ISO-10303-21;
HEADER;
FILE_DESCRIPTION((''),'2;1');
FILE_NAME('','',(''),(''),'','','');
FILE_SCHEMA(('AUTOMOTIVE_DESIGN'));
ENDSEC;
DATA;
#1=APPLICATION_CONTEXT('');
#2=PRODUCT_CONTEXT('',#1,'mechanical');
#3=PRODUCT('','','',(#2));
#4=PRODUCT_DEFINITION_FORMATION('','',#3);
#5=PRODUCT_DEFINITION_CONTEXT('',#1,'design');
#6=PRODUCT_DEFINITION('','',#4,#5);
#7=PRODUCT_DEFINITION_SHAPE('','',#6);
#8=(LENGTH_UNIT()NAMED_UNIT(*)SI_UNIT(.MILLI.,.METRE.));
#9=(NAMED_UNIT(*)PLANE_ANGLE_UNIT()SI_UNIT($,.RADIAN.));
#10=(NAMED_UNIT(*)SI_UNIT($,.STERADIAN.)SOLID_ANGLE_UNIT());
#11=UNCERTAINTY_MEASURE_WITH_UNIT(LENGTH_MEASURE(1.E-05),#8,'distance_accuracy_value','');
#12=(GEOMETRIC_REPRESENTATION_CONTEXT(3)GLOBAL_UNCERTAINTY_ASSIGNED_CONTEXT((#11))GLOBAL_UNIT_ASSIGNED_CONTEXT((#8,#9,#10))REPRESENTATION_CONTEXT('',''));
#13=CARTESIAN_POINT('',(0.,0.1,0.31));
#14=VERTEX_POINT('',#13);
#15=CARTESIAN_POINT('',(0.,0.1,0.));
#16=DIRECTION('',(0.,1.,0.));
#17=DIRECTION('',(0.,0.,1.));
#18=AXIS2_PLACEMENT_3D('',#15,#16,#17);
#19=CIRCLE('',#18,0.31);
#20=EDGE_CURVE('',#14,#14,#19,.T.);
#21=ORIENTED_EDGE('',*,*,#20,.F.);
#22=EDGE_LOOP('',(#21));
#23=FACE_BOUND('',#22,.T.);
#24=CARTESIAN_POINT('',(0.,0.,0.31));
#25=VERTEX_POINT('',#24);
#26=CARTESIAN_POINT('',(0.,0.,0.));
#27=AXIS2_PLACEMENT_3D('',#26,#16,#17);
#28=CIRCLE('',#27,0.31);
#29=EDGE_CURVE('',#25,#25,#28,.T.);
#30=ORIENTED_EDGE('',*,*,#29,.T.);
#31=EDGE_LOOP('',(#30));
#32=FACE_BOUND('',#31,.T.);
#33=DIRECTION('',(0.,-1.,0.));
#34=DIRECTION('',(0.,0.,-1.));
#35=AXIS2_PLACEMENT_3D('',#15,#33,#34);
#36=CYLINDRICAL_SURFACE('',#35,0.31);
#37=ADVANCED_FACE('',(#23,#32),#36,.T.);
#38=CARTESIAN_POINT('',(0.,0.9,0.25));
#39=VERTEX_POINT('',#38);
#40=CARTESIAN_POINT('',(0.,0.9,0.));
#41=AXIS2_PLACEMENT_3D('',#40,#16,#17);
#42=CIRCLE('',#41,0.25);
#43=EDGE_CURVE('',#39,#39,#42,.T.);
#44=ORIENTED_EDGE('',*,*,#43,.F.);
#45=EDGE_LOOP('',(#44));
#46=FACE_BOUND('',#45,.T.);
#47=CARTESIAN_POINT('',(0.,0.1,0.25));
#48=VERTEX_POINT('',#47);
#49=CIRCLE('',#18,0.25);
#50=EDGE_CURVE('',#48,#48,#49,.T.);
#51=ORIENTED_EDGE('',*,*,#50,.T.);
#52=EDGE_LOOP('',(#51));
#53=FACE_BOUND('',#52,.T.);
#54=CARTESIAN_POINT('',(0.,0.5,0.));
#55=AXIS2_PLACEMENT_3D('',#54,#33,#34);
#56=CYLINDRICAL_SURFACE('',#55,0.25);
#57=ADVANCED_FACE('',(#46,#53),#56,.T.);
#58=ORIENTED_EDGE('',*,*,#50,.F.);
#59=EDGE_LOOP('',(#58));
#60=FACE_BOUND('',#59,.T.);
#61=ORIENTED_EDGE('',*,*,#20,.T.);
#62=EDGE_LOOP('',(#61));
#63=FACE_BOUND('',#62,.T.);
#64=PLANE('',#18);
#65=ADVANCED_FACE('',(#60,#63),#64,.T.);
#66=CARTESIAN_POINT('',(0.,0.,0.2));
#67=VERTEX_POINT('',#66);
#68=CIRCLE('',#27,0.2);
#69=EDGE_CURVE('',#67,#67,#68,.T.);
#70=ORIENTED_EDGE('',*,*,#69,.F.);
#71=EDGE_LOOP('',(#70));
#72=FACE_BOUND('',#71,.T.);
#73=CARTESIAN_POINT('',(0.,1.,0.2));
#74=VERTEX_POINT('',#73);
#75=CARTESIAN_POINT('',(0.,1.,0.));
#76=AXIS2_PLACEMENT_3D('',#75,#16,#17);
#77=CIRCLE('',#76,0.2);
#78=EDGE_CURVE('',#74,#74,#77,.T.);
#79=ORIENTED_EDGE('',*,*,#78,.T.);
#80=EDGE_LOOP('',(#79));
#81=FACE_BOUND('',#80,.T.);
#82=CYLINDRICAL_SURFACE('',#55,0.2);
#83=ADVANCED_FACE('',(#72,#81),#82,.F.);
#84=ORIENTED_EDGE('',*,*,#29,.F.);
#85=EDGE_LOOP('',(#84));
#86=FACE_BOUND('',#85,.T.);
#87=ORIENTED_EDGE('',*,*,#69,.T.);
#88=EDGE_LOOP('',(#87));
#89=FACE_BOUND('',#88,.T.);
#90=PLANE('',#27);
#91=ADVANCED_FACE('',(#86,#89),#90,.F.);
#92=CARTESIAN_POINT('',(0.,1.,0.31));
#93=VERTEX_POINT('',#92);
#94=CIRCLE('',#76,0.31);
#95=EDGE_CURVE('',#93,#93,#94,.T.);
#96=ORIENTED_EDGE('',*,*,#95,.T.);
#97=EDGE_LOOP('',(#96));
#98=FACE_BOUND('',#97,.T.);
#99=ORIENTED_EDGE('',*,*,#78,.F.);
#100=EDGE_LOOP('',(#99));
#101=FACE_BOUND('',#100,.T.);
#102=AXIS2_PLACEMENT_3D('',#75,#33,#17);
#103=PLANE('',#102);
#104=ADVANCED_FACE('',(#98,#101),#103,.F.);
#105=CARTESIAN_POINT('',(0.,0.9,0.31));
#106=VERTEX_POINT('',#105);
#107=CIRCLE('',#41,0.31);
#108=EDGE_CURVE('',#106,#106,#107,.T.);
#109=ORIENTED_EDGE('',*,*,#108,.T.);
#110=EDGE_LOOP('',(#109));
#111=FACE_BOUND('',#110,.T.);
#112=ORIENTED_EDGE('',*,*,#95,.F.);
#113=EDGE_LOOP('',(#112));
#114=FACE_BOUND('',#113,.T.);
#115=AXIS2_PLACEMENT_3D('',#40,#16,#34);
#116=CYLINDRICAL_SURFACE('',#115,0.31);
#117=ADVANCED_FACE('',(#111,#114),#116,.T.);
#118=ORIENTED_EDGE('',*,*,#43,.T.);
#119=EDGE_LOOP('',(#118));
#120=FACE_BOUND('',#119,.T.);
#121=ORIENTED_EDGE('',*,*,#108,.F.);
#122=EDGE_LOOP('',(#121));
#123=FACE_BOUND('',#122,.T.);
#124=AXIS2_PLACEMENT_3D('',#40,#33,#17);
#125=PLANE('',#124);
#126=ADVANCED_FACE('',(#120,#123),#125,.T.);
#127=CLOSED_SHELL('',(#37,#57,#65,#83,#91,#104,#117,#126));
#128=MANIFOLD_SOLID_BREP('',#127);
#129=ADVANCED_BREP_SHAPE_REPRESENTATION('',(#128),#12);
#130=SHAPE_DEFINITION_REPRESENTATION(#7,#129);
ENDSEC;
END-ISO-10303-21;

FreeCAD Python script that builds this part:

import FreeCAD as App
import Part
import Sketcher

V = App.Vector

doc = App.newDocument("Part")
params = doc.addObject("Spreadsheet::Sheet", "Params")
for row, (alias, value) in enumerate([
    ("sketch1_diameter", "0.5 mm"),
    ("sketch1_diameter2", "0.4 mm"),
    ("sketch2_height", "0.5 mm"),
    ("sketch3_diameter", "0.62 mm"),
    ("sketch3_diameter2", "0.42 mm"),
    ("sketch4_height", "0.1 mm"),
], start=1):
    params.set(f"A{row}", alias)
    params.set(f"B{row}", "=" + value)
    params.setAlias(f"B{row}", alias)

body = doc.addObject("PartDesign::Body", "Body")

# Sketch on XZ plane
sketch1 = body.newObject("Sketcher::SketchObject", "Sketch")
sketch1.AttachmentSupport = (doc.getObject("XZ_Plane"), [""])
sketch1.MapMode = "FlatFace"
sketch1.addGeometry([
    Part.Circle(V(0, 0, 0), V(0, 0, 1), 0.25),
    Part.Circle(V(0, 0, 0), V(0, 0, 1), 0.2),
], False)
sketch1.addConstraint([
    Sketcher.Constraint("Coincident", 0, 3, -1, 1),
    Sketcher.Constraint("Coincident", 1, 3, -1, 1),
    Sketcher.Constraint("Diameter", 0, 0.5),
    Sketcher.Constraint("Diameter", 1, 0.4),
])
sketch1.setExpression("Constraints[2]", "Params.sketch1_diameter")
sketch1.setExpression("Constraints[3]", "Params.sketch1_diameter2")

# Sketch on XY plane
sketch2 = body.newObject("Sketcher::SketchObject", "Sketch001")
sketch2.AttachmentSupport = (doc.getObject("XY_Plane"), [""])
sketch2.MapMode = "FlatFace"
sketch2.addGeometry(Part.LineSegment(V(0, 0, 0), V(0, 0.5, 0)), False)
sketch2.addConstraint([
    Sketcher.Constraint("Vertical", 0),
    Sketcher.Constraint("Coincident", 0, 1, -1, 1),
    Sketcher.Constraint("DistanceY", 0, 1, 0, 2, 0.5),
])
sketch2.setExpression("Constraints[2]", "Params.sketch2_height")
doc.recompute()

additivepipe = body.newObject("PartDesign::AdditivePipe", "AdditivePipe")
additivepipe.Profile = sketch1
additivepipe.Spine = (sketch2, ["Edge1"])

# Sketch on XZ plane
sketch3 = body.newObject("Sketcher::SketchObject", "Sketch002")
sketch3.AttachmentSupport = (doc.getObject("XZ_Plane"), [""])
sketch3.MapMode = "FlatFace"
sketch3.addGeometry([
    Part.Circle(V(0, 0, 0), V(0, 0, 1), 0.31),
    Part.Circle(V(0, 0, 0), V(0, 0, 1), 0.21),
], False)
sketch3.addConstraint([
    Sketcher.Constraint("Coincident", 0, 3, -1, 1),
    Sketcher.Constraint("Coincident", 1, 3, -1, 1),
    Sketcher.Constraint("Diameter", 0, 0.62),
    Sketcher.Constraint("Diameter", 1, 0.42),
])
sketch3.setExpression("Constraints[2]", "Params.sketch3_diameter")
sketch3.setExpression("Constraints[3]", "Params.sketch3_diameter2")

# Sketch on XY plane
sketch4 = body.newObject("Sketcher::SketchObject", "Sketch003")
sketch4.AttachmentSupport = (doc.getObject("XY_Plane"), [""])
sketch4.MapMode = "FlatFace"
sketch4.addGeometry(Part.LineSegment(V(0, 0, 0), V(0, 0.1, 0)), False)
sketch4.addConstraint([
    Sketcher.Constraint("Vertical", 0),
    Sketcher.Constraint("Coincident", 0, 1, -1, 1),
    Sketcher.Constraint("DistanceY", 0, 1, 0, 2, 0.1),
])
sketch4.setExpression("Constraints[2]", "Params.sketch4_height")
doc.recompute()

additivepipe2 = body.newObject("PartDesign::AdditivePipe", "AdditivePipe001")
additivepipe2.Profile = sketch3
additivepipe2.Spine = (sketch4, ["Edge1"])
body2 = doc.addObject("PartDesign::Body", "Body001")
doc.recompute()

body2.BaseFeature = body
doc.recompute()

mirroring = doc.addObject("Part::Mirroring", "Mirroring")
mirroring.Source = body
mirroring.Base = V(0, 0.5, 0)
mirroring.Normal = V(0, 1, 0)
body3 = doc.addObject("PartDesign::Body", "Body002")
body3.BaseFeature = mirroring
boolean = body2.newObject("PartDesign::Boolean", "Boolean")
boolean.Type = "Fuse"
boolean.addObjects([body3])
doc.recompute()
mirroring.Visibility = False

doc.recompute()
